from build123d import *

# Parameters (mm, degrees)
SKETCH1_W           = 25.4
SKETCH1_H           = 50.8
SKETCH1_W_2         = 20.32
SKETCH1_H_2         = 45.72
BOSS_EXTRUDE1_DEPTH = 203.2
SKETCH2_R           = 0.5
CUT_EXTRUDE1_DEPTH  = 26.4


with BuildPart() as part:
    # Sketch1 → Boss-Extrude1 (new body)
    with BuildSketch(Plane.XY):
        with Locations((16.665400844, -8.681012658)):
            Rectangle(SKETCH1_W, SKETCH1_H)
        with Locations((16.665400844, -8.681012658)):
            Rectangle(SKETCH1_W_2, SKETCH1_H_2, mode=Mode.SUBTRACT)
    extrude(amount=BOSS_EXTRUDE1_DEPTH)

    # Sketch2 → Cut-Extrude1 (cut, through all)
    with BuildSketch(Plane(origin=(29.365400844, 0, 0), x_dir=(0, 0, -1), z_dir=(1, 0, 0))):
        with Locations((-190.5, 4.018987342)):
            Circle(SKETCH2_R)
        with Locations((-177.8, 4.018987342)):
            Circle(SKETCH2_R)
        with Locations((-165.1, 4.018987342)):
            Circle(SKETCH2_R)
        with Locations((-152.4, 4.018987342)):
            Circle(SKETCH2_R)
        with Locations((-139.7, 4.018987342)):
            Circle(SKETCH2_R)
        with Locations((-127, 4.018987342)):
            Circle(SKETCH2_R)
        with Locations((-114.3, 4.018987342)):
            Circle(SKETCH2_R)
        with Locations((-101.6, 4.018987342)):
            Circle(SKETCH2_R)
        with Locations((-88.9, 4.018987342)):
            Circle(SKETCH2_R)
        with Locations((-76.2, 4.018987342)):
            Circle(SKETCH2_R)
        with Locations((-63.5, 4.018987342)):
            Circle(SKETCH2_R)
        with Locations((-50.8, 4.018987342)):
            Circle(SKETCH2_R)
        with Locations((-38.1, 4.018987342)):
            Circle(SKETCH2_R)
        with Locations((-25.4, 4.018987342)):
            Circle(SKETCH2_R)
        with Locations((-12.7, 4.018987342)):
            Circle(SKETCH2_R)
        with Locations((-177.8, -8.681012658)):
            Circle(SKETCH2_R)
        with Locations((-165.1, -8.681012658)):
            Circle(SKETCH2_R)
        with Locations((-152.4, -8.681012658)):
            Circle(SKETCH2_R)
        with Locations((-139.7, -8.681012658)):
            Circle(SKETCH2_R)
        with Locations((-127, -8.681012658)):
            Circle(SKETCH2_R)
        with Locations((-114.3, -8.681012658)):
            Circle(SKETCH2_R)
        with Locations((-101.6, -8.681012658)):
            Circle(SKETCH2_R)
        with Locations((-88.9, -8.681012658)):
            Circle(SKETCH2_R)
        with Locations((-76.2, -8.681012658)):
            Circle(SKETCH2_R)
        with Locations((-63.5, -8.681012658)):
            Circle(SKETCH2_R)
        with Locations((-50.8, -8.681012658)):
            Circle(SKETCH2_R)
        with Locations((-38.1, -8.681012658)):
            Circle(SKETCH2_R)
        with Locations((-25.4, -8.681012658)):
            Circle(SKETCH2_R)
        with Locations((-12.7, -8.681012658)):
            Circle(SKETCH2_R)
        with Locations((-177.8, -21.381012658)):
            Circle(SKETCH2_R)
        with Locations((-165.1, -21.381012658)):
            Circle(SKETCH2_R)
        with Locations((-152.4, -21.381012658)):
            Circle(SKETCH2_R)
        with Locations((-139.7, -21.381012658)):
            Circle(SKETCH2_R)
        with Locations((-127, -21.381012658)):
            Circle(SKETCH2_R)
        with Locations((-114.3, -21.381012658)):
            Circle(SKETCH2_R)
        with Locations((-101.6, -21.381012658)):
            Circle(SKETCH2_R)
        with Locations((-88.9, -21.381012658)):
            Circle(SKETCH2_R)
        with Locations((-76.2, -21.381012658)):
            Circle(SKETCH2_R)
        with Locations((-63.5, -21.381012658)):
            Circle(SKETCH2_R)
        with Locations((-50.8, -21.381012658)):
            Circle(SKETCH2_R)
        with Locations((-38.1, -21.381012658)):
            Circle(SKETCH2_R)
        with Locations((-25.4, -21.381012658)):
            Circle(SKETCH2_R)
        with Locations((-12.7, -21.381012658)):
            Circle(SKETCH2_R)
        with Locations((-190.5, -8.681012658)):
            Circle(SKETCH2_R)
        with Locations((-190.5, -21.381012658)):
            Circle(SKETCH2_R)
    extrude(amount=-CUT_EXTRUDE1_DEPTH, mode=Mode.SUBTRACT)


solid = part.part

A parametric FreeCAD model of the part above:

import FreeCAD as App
import Part
import Sketcher
Q = App.Units.Quantity


def add_polygon(sketch, points):
    """Adds a closed chain of lines whose ends are joined by coincident constraints."""
    first, n = sketch.GeometryCount, len(points)
    for a, b in zip(points, points[1:] + points[:1]):
        sketch.addGeometry(Part.LineSegment(App.Vector(*a, 0), App.Vector(*b, 0)), False)
    for i in range(n):
        sketch.addConstraint(Sketcher.Constraint("Coincident", first + i, 2, first + (i + 1) % n, 1))

doc = App.newDocument("Part")
body = doc.addObject("PartDesign::Body", "Body")

# Sketch on XY plane
sketch1 = body.newObject("Sketcher::SketchObject", "Sketch")
sketch1.AttachmentSupport = (doc.getObject("XY_Plane"), [""])
sketch1.MapMode = "FlatFace"
add_polygon(sketch1, [(4, 17), (4, -34), (29, -34), (29, 17)])  # lines 0-3
add_polygon(sketch1, [(27, -32), (7, -32), (7, 14), (27, 14)])  # lines 4-7
sketch1.addConstraint(Sketcher.Constraint("Vertical", 0))
sketch1.addConstraint(Sketcher.Constraint("Horizontal", 1))
sketch1.addConstraint(Sketcher.Constraint("Vertical", 2))
sketch1.addConstraint(Sketcher.Constraint("Horizontal", 3))
sketch1.addConstraint(Sketcher.Constraint("Horizontal", 4))
sketch1.addConstraint(Sketcher.Constraint("Vertical", 5))
sketch1.addConstraint(Sketcher.Constraint("Horizontal", 6))
sketch1.addConstraint(Sketcher.Constraint("Vertical", 7))
sketch1.addConstraint(Sketcher.Constraint("DistanceX", 1, 1, 1, 2, Q("1 in")))
sketch1.addConstraint(Sketcher.Constraint("DistanceY", 0, 2, 0, 1, Q("2 in")))
sketch1.addConstraint(Sketcher.Constraint("DistanceX", 4, 2, 4, 1, Q("0.8 in")))
sketch1.addConstraint(Sketcher.Constraint("DistanceY", 5, 1, 5, 2, Q("1.8 in")))
sketch1.addConstraint(Sketcher.Constraint("DistanceX", 0, 2, 4, 2, Q("0.1 in")))
sketch1.addConstraint(Sketcher.Constraint("DistanceY", 0, 2, 4, 2, Q("0.1 in")))
sketch1.addConstraint(Sketcher.Constraint("DistanceX", -1, 1, 0, 2, Q("3.965401 mm")))
sketch1.addConstraint(Sketcher.Constraint("DistanceY", 0, 2, -1, 1, Q("34.081013 mm")))
pad1 = body.newObject("PartDesign::Pad", "Pad")
pad1.Profile = sketch1
pad1.Length = Q("8 in")

# Sketch on YZ plane
sketch2 = body.newObject("Sketcher::SketchObject", "Sketch001")
sketch2.AttachmentSupport = (doc.getObject("YZ_Plane"), [""])
sketch2.MapMode = "FlatFace"
sketch2.AttachmentOffset = App.Placement(App.Vector(0, 0, 29.365401), App.Rotation())
sketch2.addGeometry(Part.Circle(App.Vector(4, 190.5, 0), App.Vector(0, 0, 1), 0.5), False)
sketch2.addGeometry(Part.Circle(App.Vector(4, 177.8, 0), App.Vector(0, 0, 1), 0.5), False)
sketch2.addGeometry(Part.Circle(App.Vector(4, 165.1, 0), App.Vector(0, 0, 1), 0.5), False)
sketch2.addGeometry(Part.Circle(App.Vector(4, 152.4, 0), App.Vector(0, 0, 1), 0.5), False)
sketch2.addGeometry(Part.Circle(App.Vector(4, 139.7, 0), App.Vector(0, 0, 1), 0.5), False)
sketch2.addGeometry(Part.Circle(App.Vector(4, 127, 0), App.Vector(0, 0, 1), 0.5), False)
sketch2.addGeometry(Part.Circle(App.Vector(4, 114.3, 0), App.Vector(0, 0, 1), 0.5), False)
sketch2.addGeometry(Part.Circle(App.Vector(4, 101.6, 0), App.Vector(0, 0, 1), 0.5), False)
sketch2.addGeometry(Part.Circle(App.Vector(4, 88.9, 0), App.Vector(0, 0, 1), 0.5), False)
sketch2.addGeometry(Part.Circle(App.Vector(4, 76.2, 0), App.Vector(0, 0, 1), 0.5), False)
sketch2.addGeometry(Part.Circle(App.Vector(4, 63.5, 0), App.Vector(0, 0, 1), 0.5), False)
sketch2.addGeometry(Part.Circle(App.Vector(4, 50.8, 0), App.Vector(0, 0, 1), 0.5), False)
sketch2.addGeometry(Part.Circle(App.Vector(4, 38.1, 0), App.Vector(0, 0, 1), 0.5), False)
sketch2.addGeometry(Part.Circle(App.Vector(4, 25.4, 0), App.Vector(0, 0, 1), 0.5), False)
sketch2.addGeometry(Part.Circle(App.Vector(4, 12.7, 0), App.Vector(0, 0, 1), 0.5), False)
sketch2.addGeometry(Part.Circle(App.Vector(-8.7, 177.8, 0), App.Vector(0, 0, 1), 0.5), False)
sketch2.addGeometry(Part.Circle(App.Vector(-8.7, 165.1, 0), App.Vector(0, 0, 1), 0.5), False)
sketch2.addGeometry(Part.Circle(App.Vector(-8.7, 152.4, 0), App.Vector(0, 0, 1), 0.5), False)
sketch2.addGeometry(Part.Circle(App.Vector(-8.7, 139.7, 0), App.Vector(0, 0, 1), 0.5), False)
sketch2.addGeometry(Part.Circle(App.Vector(-8.7, 127, 0), App.Vector(0, 0, 1), 0.5), False)
sketch2.addGeometry(Part.Circle(App.Vector(-8.7, 114.3, 0), App.Vector(0, 0, 1), 0.5), False)
sketch2.addGeometry(Part.Circle(App.Vector(-8.7, 101.6, 0), App.Vector(0, 0, 1), 0.5), False)
sketch2.addGeometry(Part.Circle(App.Vector(-8.7, 88.9, 0), App.Vector(0, 0, 1), 0.5), False)
sketch2.addGeometry(Part.Circle(App.Vector(-8.7, 76.2, 0), App.Vector(0, 0, 1), 0.5), False)
sketch2.addGeometry(Part.Circle(App.Vector(-8.7, 63.5, 0), App.Vector(0, 0, 1), 0.5), False)
sketch2.addGeometry(Part.Circle(App.Vector(-8.7, 50.8, 0), App.Vector(0, 0, 1), 0.5), False)
sketch2.addGeometry(Part.Circle(App.Vector(-8.7, 38.1, 0), App.Vector(0, 0, 1), 0.5), False)
sketch2.addGeometry(Part.Circle(App.Vector(-8.7, 25.4, 0), App.Vector(0, 0, 1), 0.5), False)
sketch2.addGeometry(Part.Circle(App.Vector(-8.7, 12.7, 0), App.Vector(0, 0, 1), 0.5), False)
sketch2.addGeometry(Part.Circle(App.Vector(-21.4, 177.8, 0), App.Vector(0, 0, 1), 0.5), False)
sketch2.addGeometry(Part.Circle(App.Vector(-21.4, 165.1, 0), App.Vector(0, 0, 1), 0.5), False)
sketch2.addGeometry(Part.Circle(App.Vector(-21.4, 152.4, 0), App.Vector(0, 0, 1), 0.5), False)
sketch2.addGeometry(Part.Circle(App.Vector(-21.4, 139.7, 0), App.Vector(0, 0, 1), 0.5), False)
sketch2.addGeometry(Part.Circle(App.Vector(-21.4, 127, 0), App.Vector(0, 0, 1), 0.5), False)
sketch2.addGeometry(Part.Circle(App.Vector(-21.4, 114.3, 0), App.Vector(0, 0, 1), 0.5), False)
sketch2.addGeometry(Part.Circle(App.Vector(-21.4, 101.6, 0), App.Vector(0, 0, 1), 0.5), False)
sketch2.addGeometry(Part.Circle(App.Vector(-21.4, 88.9, 0), App.Vector(0, 0, 1), 0.5), False)
sketch2.addGeometry(Part.Circle(App.Vector(-21.4, 76.2, 0), App.Vector(0, 0, 1), 0.5), False)
sketch2.addGeometry(Part.Circle(App.Vector(-21.4, 63.5, 0), App.Vector(0, 0, 1), 0.5), False)
sketch2.addGeometry(Part.Circle(App.Vector(-21.4, 50.8, 0), App.Vector(0, 0, 1), 0.5), False)
sketch2.addGeometry(Part.Circle(App.Vector(-21.4, 38.1, 0), App.Vector(0, 0, 1), 0.5), False)
sketch2.addGeometry(Part.Circle(App.Vector(-21.4, 25.4, 0), App.Vector(0, 0, 1), 0.5), False)
sketch2.addGeometry(Part.Circle(App.Vector(-21.4, 12.7, 0), App.Vector(0, 0, 1), 0.5), False)
sketch2.addGeometry(Part.Circle(App.Vector(-8.7, 190.5, 0), App.Vector(0, 0, 1), 0.5), False)
sketch2.addGeometry(Part.Circle(App.Vector(-21.4, 190.5, 0), App.Vector(0, 0, 1), 0.5), False)
sketch2.addConstraint(Sketcher.Constraint("Equal", 0, 1))
sketch2.addConstraint(Sketcher.Constraint("Equal", 1, 2))
sketch2.addConstraint(Sketcher.Constraint("Equal", 2, 3))
sketch2.addConstraint(Sketcher.Constraint("Equal", 3, 4))
sketch2.addConstraint(Sketcher.Constraint("Equal", 4, 5))
sketch2.addConstraint(Sketcher.Constraint("Equal", 5, 6))
sketch2.addConstraint(Sketcher.Constraint("Equal", 6, 7))
sketch2.addConstraint(Sketcher.Constraint("Equal", 7, 8))
sketch2.addConstraint(Sketcher.Constraint("Equal", 8, 9))
sketch2.addConstraint(Sketcher.Constraint("Equal", 9, 10))
sketch2.addConstraint(Sketcher.Constraint("Equal", 10, 11))
sketch2.addConstraint(Sketcher.Constraint("Equal", 11, 12))
sketch2.addConstraint(Sketcher.Constraint("Equal", 12, 13))
sketch2.addConstraint(Sketcher.Constraint("Equal", 13, 14))
sketch2.addConstraint(Sketcher.Constraint("Equal", 14, 15))
sketch2.addConstraint(Sketcher.Constraint("Equal", 15, 16))
sketch2.addConstraint(Sketcher.Constraint("Equal", 16, 17))
sketch2.addConstraint(Sketcher.Constraint("Equal", 17, 18))
sketch2.addConstraint(Sketcher.Constraint("Equal", 18, 19))
sketch2.addConstraint(Sketcher.Constraint("Equal", 19, 20))
sketch2.addConstraint(Sketcher.Constraint("Equal", 20, 21))
sketch2.addConstraint(Sketcher.Constraint("Equal", 21, 22))
sketch2.addConstraint(Sketcher.Constraint("Equal", 22, 23))
sketch2.addConstraint(Sketcher.Constraint("Equal", 23, 24))
sketch2.addConstraint(Sketcher.Constraint("Equal", 24, 25))
sketch2.addConstraint(Sketcher.Constraint("Equal", 25, 26))
sketch2.addConstraint(Sketcher.Constraint("Equal", 26, 27))
sketch2.addConstraint(Sketcher.Constraint("Equal", 27, 28))
sketch2.addConstraint(Sketcher.Constraint("Equal", 28, 29))
sketch2.addConstraint(Sketcher.Constraint("Equal", 29, 30))
sketch2.addConstraint(Sketcher.Constraint("Equal", 30, 31))
sketch2.addConstraint(Sketcher.Constraint("Equal", 31, 32))
sketch2.addConstraint(Sketcher.Constraint("Equal", 32, 33))
sketch2.addConstraint(Sketcher.Constraint("Equal", 33, 34))
sketch2.addConstraint(Sketcher.Constraint("Equal", 34, 35))
sketch2.addConstraint(Sketcher.Constraint("Equal", 35, 36))
sketch2.addConstraint(Sketcher.Constraint("Equal", 36, 37))
sketch2.addConstraint(Sketcher.Constraint("Equal", 37, 38))
sketch2.addConstraint(Sketcher.Constraint("Equal", 38, 39))
sketch2.addConstraint(Sketcher.Constraint("Equal", 39, 40))
sketch2.addConstraint(Sketcher.Constraint("Equal", 40, 41))
sketch2.addConstraint(Sketcher.Constraint("Equal", 41, 42))
sketch2.addConstraint(Sketcher.Constraint("Equal", 42, 43))
sketch2.addConstraint(Sketcher.Constraint("Equal", 43, 44))
sketch2.addConstraint(Sketcher.Constraint("Horizontal", 1, 3, 15, 3))
sketch2.addConstraint(Sketcher.Constraint("Horizontal", 2, 3, 16, 3))
sketch2.addConstraint(Sketcher.Constraint("Horizontal", 3, 3, 17, 3))
sketch2.addConstraint(Sketcher.Constraint("Horizontal", 4, 3, 18, 3))
sketch2.addConstraint(Sketcher.Constraint("Horizontal", 5, 3, 19, 3))
sketch2.addConstraint(Sketcher.Constraint("Horizontal", 6, 3, 20, 3))
sketch2.addConstraint(Sketcher.Constraint("Horizontal", 7, 3, 21, 3))
sketch2.addConstraint(Sketcher.Constraint("Horizontal", 8, 3, 22, 3))
sketch2.addConstraint(Sketcher.Constraint("Horizontal", 9, 3, 23, 3))
sketch2.addConstraint(Sketcher.Constraint("Horizontal", 10, 3, 24, 3))
sketch2.addConstraint(Sketcher.Constraint("Horizontal", 11, 3, 25, 3))
sketch2.addConstraint(Sketcher.Constraint("Horizontal", 12, 3, 26, 3))
sketch2.addConstraint(Sketcher.Constraint("Horizontal", 13, 3, 27, 3))
sketch2.addConstraint(Sketcher.Constraint("Horizontal", 14, 3, 28, 3))
sketch2.addConstraint(Sketcher.Constraint("Horizontal", 15, 3, 29, 3))
sketch2.addConstraint(Sketcher.Constraint("Horizontal", 16, 3, 30, 3))
sketch2.addConstraint(Sketcher.Constraint("Horizontal", 17, 3, 31, 3))
sketch2.addConstraint(Sketcher.Constraint("Horizontal", 18, 3, 32, 3))
sketch2.addConstraint(Sketcher.Constraint("Horizontal", 19, 3, 33, 3))
sketch2.addConstraint(Sketcher.Constraint("Horizontal", 20, 3, 34, 3))
sketch2.addConstraint(Sketcher.Constraint("Horizontal", 21, 3, 35, 3))
sketch2.addConstraint(Sketcher.Constraint("Horizontal", 22, 3, 36, 3))
sketch2.addConstraint(Sketcher.Constraint("Horizontal", 23, 3, 37, 3))
sketch2.addConstraint(Sketcher.Constraint("Horizontal", 24, 3, 38, 3))
sketch2.addConstraint(Sketcher.Constraint("Horizontal", 25, 3, 39, 3))
sketch2.addConstraint(Sketcher.Constraint("Horizontal", 26, 3, 40, 3))
sketch2.addConstraint(Sketcher.Constraint("Horizontal", 27, 3, 41, 3))
sketch2.addConstraint(Sketcher.Constraint("Horizontal", 28, 3, 42, 3))
sketch2.addConstraint(Sketcher.Constraint("Horizontal", 0, 3, 43, 3))
sketch2.addConstraint(Sketcher.Constraint("Horizontal", 43, 3, 44, 3))
sketch2.addConstraint(Sketcher.Constraint("Vertical", 0, 3, 1, 3))
sketch2.addConstraint(Sketcher.Constraint("Vertical", 1, 3, 2, 3))
sketch2.addConstraint(Sketcher.Constraint("Vertical", 2, 3, 3, 3))
sketch2.addConstraint(Sketcher.Constraint("Vertical", 3, 3, 4, 3))
sketch2.addConstraint(Sketcher.Constraint("Vertical", 4, 3, 5, 3))
sketch2.addConstraint(Sketcher.Constraint("Vertical", 5, 3, 6, 3))
sketch2.addConstraint(Sketcher.Constraint("Vertical", 6, 3, 7, 3))
sketch2.addConstraint(Sketcher.Constraint("Vertical", 7, 3, 8, 3))
sketch2.addConstraint(Sketcher.Constraint("Vertical", 8, 3, 9, 3))
sketch2.addConstraint(Sketcher.Constraint("Vertical", 9, 3, 10, 3))
sketch2.addConstraint(Sketcher.Constraint("Vertical", 10, 3, 11, 3))
sketch2.addConstraint(Sketcher.Constraint("Vertical", 11, 3, 12, 3))
sketch2.addConstraint(Sketcher.Constraint("Vertical", 12, 3, 13, 3))
sketch2.addConstraint(Sketcher.Constraint("Vertical", 13, 3, 14, 3))
sketch2.addConstraint(Sketcher.Constraint("Vertical", 15, 3, 16, 3))
sketch2.addConstraint(Sketcher.Constraint("Vertical", 16, 3, 17, 3))
sketch2.addConstraint(Sketcher.Constraint("Vertical", 17, 3, 18, 3))
sketch2.addConstraint(Sketcher.Constraint("Vertical", 18, 3, 19, 3))
sketch2.addConstraint(Sketcher.Constraint("Vertical", 19, 3, 20, 3))
sketch2.addConstraint(Sketcher.Constraint("Vertical", 20, 3, 21, 3))
sketch2.addConstraint(Sketcher.Constraint("Vertical", 21, 3, 22, 3))
sketch2.addConstraint(Sketcher.Constraint("Vertical", 22, 3, 23, 3))
sketch2.addConstraint(Sketcher.Constraint("Vertical", 23, 3, 24, 3))
sketch2.addConstraint(Sketcher.Constraint("Vertical", 24, 3, 25, 3))
sketch2.addConstraint(Sketcher.Constraint("Vertical", 25, 3, 26, 3))
sketch2.addConstraint(Sketcher.Constraint("Vertical", 26, 3, 27, 3))
sketch2.addConstraint(Sketcher.Constraint("Vertical", 27, 3, 28, 3))
sketch2.addConstraint(Sketcher.Constraint("Vertical", 29, 3, 30, 3))
sketch2.addConstraint(Sketcher.Constraint("Vertical", 30, 3, 31, 3))
sketch2.addConstraint(Sketcher.Constraint("Vertical", 31, 3, 32, 3))
sketch2.addConstraint(Sketcher.Constraint("Vertical", 32, 3, 33, 3))
sketch2.addConstraint(Sketcher.Constraint("Vertical", 33, 3, 34, 3))
sketch2.addConstraint(Sketcher.Constraint("Vertical", 34, 3, 35, 3))
sketch2.addConstraint(Sketcher.Constraint("Vertical", 35, 3, 36, 3))
sketch2.addConstraint(Sketcher.Constraint("Vertical", 36, 3, 37, 3))
sketch2.addConstraint(Sketcher.Constraint("Vertical", 37, 3, 38, 3))
sketch2.addConstraint(Sketcher.Constraint("Vertical", 38, 3, 39, 3))
sketch2.addConstraint(Sketcher.Constraint("Vertical", 39, 3, 40, 3))
sketch2.addConstraint(Sketcher.Constraint("Vertical", 40, 3, 41, 3))
sketch2.addConstraint(Sketcher.Constraint("Vertical", 41, 3, 42, 3))
sketch2.addConstraint(Sketcher.Constraint("Vertical", 28, 3, 43, 3))
sketch2.addConstraint(Sketcher.Constraint("Vertical", 42, 3, 44, 3))
sketch2.addConstraint(Sketcher.Constraint("DistanceY", -1, 1, 1, 3, Q("7 in")))
sketch2.addConstraint(Sketcher.Constraint("DistanceY", -1, 1, 3, 3, Q("6 in")))
sketch2.addConstraint(Sketcher.Constraint("DistanceY", -1, 1, 5, 3, Q("5 in")))
sketch2.addConstraint(Sketcher.Constraint("DistanceY", -1, 1, 7, 3, Q("4 in")))
sketch2.addConstraint(Sketcher.Constraint("DistanceY", -1, 1, 9, 3, Q("3 in")))
sketch2.addConstraint(Sketcher.Constraint("DistanceY", -1, 1, 11, 3, Q("2 in")))
sketch2.addConstraint(Sketcher.Constraint("DistanceY", -1, 1, 13, 3, Q("1 in")))
sketch2.addConstraint(Sketcher.Constraint("DistanceY", 2, 3, 0, 3, Q("1 in")))
sketch2.addConstraint(Sketcher.Constraint("DistanceY", 4, 3, 2, 3, Q("1 in")))
sketch2.addConstraint(Sketcher.Constraint("DistanceY", 6, 3, 4, 3, Q("1 in")))
sketch2.addConstraint(Sketcher.Constraint("DistanceY", 8, 3, 6, 3, Q("1 in")))
sketch2.addConstraint(Sketcher.Constraint("DistanceY", 10, 3, 8, 3, Q("1 in")))
sketch2.addConstraint(Sketcher.Constraint("DistanceY", 12, 3, 10, 3, Q("1 in")))
sketch2.addConstraint(Sketcher.Constraint("DistanceY", 14, 3, 12, 3, Q("1 in")))
sketch2.addConstraint(Sketcher.Constraint("DistanceX", 29, 3, 1, 3, Q("1 in")))
sketch2.addConstraint(Sketcher.Constraint("DistanceY", -1, 1, 0, 3, Q("7.5 in")))
sketch2.addConstraint(Sketcher.Constraint("DistanceX", 15, 3, 1, 3, Q("0.5 in")))
sketch2.addConstraint(Sketcher.Constraint("Diameter", 0, Q("1 mm")))
sketch2.addConstraint(Sketcher.Constraint("DistanceX", -1, 1, 0, 3, Q("4.018987 mm")))
pocket1 = body.newObject("PartDesign::Pocket", "Pocket")
pocket1.Profile = sketch2
pocket1.Type = "ThroughAll"

doc.recompute()
